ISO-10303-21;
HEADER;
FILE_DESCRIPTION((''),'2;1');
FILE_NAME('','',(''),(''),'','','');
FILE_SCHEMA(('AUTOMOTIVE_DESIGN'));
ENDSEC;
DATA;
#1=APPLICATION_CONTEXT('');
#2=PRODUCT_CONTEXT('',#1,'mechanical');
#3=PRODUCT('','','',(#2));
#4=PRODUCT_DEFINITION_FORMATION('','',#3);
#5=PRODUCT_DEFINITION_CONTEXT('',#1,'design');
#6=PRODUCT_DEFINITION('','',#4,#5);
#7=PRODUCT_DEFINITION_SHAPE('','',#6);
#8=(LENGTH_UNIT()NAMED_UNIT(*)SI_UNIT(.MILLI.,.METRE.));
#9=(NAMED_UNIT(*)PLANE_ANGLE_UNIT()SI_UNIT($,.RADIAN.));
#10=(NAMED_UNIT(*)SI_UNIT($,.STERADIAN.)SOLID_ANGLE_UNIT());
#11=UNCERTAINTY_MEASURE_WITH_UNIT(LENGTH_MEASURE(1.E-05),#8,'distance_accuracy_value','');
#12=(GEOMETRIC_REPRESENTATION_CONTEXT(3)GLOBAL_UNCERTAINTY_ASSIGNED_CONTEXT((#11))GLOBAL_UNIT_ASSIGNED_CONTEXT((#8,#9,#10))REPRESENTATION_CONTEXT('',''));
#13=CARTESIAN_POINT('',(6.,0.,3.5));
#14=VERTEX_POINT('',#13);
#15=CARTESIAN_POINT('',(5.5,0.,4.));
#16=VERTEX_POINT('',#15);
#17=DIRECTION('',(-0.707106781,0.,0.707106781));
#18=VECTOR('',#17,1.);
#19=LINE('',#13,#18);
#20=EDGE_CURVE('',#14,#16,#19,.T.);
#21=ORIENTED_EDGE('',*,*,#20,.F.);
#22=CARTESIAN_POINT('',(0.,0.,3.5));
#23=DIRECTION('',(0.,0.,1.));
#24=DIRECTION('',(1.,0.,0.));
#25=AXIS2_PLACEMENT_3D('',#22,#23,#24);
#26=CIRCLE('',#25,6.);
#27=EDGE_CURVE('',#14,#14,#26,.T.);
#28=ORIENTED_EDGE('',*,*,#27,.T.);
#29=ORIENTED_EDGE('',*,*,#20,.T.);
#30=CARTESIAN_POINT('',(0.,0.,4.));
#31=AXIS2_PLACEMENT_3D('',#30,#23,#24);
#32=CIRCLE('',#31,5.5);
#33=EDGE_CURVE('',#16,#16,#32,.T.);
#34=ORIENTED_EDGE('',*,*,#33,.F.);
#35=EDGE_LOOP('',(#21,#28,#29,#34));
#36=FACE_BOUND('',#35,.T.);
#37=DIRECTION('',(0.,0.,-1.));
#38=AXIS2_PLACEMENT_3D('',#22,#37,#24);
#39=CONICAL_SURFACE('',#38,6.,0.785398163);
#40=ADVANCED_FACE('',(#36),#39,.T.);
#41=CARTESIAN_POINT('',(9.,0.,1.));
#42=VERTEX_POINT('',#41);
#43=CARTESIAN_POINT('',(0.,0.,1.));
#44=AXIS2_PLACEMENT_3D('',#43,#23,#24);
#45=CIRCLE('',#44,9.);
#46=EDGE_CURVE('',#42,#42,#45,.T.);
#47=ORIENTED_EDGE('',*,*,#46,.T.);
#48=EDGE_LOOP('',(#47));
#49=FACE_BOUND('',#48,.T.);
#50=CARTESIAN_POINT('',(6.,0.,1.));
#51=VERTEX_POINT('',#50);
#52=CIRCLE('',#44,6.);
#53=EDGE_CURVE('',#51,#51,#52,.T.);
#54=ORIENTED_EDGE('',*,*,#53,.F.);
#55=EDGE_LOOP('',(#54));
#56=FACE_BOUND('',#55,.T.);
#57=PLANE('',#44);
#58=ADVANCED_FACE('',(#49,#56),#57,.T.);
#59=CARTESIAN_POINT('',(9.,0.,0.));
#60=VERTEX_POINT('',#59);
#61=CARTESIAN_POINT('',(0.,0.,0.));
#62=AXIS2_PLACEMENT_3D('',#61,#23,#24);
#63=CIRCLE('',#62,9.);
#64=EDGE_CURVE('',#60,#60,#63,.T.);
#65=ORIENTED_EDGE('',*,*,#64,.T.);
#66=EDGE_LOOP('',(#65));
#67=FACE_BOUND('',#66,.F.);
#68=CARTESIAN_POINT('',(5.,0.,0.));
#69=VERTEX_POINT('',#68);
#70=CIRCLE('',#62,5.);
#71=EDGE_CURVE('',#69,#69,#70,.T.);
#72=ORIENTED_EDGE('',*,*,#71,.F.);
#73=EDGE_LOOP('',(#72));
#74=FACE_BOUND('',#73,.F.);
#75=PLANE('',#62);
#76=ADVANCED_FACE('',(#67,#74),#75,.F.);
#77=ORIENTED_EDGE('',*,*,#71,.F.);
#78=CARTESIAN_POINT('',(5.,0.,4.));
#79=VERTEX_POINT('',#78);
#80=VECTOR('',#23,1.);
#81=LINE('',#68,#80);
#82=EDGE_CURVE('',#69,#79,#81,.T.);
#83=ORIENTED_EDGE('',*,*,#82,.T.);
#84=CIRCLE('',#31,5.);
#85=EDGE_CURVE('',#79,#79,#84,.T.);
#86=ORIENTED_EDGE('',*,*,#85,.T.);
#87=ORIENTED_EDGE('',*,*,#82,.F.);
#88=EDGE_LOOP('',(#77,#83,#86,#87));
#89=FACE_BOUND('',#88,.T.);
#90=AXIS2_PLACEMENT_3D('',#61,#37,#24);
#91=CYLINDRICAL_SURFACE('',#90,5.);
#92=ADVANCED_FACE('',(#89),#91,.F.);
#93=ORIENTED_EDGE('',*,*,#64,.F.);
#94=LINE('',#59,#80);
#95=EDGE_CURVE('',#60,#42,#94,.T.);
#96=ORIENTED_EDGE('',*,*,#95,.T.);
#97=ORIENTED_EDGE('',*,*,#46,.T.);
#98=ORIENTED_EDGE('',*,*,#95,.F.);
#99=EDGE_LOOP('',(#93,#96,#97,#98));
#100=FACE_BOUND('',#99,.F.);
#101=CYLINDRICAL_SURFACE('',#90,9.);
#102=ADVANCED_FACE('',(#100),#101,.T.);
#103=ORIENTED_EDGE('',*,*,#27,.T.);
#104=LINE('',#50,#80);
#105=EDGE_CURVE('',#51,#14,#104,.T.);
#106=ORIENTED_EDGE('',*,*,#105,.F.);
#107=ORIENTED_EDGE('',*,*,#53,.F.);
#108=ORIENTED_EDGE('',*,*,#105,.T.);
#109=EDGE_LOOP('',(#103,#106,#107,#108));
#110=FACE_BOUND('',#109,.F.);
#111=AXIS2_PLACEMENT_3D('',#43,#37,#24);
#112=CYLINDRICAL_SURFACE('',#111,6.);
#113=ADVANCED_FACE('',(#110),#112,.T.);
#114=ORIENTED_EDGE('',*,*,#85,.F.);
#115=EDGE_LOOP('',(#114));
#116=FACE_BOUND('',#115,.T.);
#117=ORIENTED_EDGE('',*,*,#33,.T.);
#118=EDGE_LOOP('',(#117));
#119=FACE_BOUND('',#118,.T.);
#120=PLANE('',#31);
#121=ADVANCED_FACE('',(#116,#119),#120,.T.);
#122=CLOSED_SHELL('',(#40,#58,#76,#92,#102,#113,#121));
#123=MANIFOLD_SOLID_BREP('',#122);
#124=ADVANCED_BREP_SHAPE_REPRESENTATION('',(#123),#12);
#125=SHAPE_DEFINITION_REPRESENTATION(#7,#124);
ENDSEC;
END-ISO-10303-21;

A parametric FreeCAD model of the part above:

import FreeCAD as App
import Part
import Sketcher

V = App.Vector


def edges_at(feature, points):
    """Names of the edges that pass closest to the given points."""
    edges = feature.Shape.Edges
    near = lambda p: min(range(len(edges)), key=lambda i: edges[i].distToShape(Part.Vertex(*p))[0])
    return sorted({f"Edge{near(p) + 1}" for p in points})

doc = App.newDocument("Part")
body = doc.addObject("PartDesign::Body", "Body")

# Sketch on XY plane
sketch1 = doc.addObject("Sketcher::SketchObject", "Sketch")
body.addObject(sketch1)
sketch1.AttachmentSupport = (doc.XY_Plane, [""])
sketch1.MapMode = "FlatFace"
sketch1.addGeometry(Part.Circle(V(0, 0, 0), V(0, 0, 1), 9), False)
sketch1.addGeometry(Part.Circle(V(0, 0, 0), V(0, 0, 1), 5), False)
sketch1.addConstraint(Sketcher.Constraint("Coincident", 0, 3, -1, 1))
sketch1.addConstraint(Sketcher.Constraint("Coincident", 1, 3, -1, 1))
sketch1.addConstraint(Sketcher.Constraint("Diameter", 0, 18.0))
sketch1.addConstraint(Sketcher.Constraint("Diameter", 1, 10.0))
pad1 = doc.addObject("PartDesign::Pad", "Pad")
body.addObject(pad1)
pad1.Profile = sketch1
pad1.Length = 1

# Sketch on XY plane
sketch2 = doc.addObject("Sketcher::SketchObject", "Sketch001")
body.addObject(sketch2)
sketch2.AttachmentSupport = (doc.XY_Plane, [""])
sketch2.MapMode = "FlatFace"
sketch2.AttachmentOffset = App.Placement(V(0, 0, 1), App.Rotation())
sketch2.addGeometry(Part.Circle(V(0, 0, 0), V(0, 0, 1), 6), False)
sketch2.addGeometry(Part.Circle(V(0, 0, 0), V(0, 0, 1), 5), False)
sketch2.addConstraint(Sketcher.Constraint("Coincident", 0, 3, -1, 1))
sketch2.addConstraint(Sketcher.Constraint("Coincident", 1, 3, -1, 1))
sketch2.addConstraint(Sketcher.Constraint("Diameter", 0, 12.0))
sketch2.addConstraint(Sketcher.Constraint("Diameter", 1, 10.0))
pad2 = doc.addObject("PartDesign::Pad", "Pad001")
body.addObject(pad2)
pad2.Profile = sketch2
pad2.Length = 3
doc.recompute()

chamfer = doc.addObject("PartDesign::Chamfer", "Chamfer")
body.addObject(chamfer)
chamfer.Base = (pad2, edges_at(pad2, [(-6, 0, 4)]))
chamfer.Size = 0.5

doc.recompute()
